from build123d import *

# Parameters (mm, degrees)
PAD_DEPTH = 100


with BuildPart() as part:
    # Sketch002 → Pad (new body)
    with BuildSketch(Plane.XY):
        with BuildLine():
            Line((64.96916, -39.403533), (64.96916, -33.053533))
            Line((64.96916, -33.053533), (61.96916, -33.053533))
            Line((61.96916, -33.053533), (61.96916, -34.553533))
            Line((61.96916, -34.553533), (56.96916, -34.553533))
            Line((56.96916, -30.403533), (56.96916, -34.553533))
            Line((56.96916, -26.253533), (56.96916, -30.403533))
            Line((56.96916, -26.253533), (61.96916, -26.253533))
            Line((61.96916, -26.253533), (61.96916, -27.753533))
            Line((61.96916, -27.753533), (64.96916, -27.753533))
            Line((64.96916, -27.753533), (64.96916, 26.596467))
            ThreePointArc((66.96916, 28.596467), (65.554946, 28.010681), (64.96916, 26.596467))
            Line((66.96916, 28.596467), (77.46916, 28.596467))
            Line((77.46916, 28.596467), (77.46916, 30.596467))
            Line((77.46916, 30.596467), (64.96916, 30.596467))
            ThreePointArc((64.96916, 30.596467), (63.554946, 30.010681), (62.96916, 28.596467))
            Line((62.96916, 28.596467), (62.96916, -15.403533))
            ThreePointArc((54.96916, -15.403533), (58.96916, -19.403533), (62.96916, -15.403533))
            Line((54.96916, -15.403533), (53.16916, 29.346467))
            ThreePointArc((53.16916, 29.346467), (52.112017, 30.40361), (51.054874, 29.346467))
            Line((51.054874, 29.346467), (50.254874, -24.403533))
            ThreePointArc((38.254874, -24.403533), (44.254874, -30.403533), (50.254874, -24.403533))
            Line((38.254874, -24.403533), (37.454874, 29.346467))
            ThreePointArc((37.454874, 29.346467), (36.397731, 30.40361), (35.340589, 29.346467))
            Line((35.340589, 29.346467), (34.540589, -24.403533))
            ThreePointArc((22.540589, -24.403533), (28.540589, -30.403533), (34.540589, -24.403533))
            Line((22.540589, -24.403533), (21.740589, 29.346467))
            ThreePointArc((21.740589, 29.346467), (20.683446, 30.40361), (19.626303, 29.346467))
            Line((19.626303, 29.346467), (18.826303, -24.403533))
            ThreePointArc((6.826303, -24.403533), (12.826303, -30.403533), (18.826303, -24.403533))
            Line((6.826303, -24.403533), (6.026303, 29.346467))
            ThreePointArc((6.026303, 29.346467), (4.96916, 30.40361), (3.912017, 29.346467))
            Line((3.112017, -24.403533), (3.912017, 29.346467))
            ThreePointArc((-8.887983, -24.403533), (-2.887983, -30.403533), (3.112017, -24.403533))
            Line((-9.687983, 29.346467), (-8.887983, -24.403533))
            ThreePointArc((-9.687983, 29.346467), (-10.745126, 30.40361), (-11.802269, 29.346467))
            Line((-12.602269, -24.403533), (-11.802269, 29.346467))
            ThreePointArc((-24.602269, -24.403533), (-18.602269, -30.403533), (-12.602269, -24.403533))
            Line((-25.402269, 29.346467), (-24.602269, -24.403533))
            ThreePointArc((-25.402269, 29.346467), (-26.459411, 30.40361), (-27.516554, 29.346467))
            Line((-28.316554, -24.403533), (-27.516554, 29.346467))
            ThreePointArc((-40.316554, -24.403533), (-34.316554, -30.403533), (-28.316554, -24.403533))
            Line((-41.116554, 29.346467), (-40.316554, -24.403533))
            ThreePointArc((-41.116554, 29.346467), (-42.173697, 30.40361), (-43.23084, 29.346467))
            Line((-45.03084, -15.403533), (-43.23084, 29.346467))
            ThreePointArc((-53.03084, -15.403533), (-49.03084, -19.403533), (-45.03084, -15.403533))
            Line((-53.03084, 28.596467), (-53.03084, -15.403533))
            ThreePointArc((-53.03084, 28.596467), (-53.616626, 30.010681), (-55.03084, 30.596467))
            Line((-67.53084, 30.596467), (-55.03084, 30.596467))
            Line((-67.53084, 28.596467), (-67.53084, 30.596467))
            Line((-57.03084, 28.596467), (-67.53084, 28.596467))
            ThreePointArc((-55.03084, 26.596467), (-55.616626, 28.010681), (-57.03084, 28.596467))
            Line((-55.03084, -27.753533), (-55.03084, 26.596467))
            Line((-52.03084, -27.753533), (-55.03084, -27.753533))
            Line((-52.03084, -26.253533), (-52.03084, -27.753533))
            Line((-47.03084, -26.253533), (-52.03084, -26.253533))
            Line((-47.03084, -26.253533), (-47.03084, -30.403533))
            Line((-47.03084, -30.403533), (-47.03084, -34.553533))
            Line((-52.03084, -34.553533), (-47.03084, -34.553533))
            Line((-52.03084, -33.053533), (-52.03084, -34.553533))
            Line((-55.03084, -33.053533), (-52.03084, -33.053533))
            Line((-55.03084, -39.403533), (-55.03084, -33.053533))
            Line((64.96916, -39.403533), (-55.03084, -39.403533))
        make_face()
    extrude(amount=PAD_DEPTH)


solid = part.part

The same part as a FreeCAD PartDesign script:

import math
import FreeCAD as App
import Part
import Sketcher

V = App.Vector

doc = App.newDocument("Part")
params = doc.addObject("Spreadsheet::Sheet", "Params")
for row, (alias, value) in enumerate([
    ("sketch1_radius", "1.999999 mm"),
    ("sketch1_radius2", "4 mm"),
    ("sketch1_radius3", "6 mm"),
    ("sketch1_width", "3 mm"),
    ("sketch1_width2", "5 mm"),
    ("pad1_length", "100 mm"),
], start=1):
    params.set(f"A{row}", alias)
    params.set(f"B{row}", "=" + value)
    params.setAlias(f"B{row}", alias)

body = doc.addObject("PartDesign::Body", "Body")

sketch1 = body.newObject("Sketcher::SketchObject", "Sketch")
sketch1.AttachmentSupport = (doc.getObject("XY_Plane"), [""])
sketch1.MapMode = "FlatFace"
sketch1.addGeometry([
    Part.LineSegment(V(65, -39.4, 0), V(65, -33.1, 0)),
    Part.LineSegment(V(65, -33.1, 0), V(62, -33.1, 0)),
    Part.LineSegment(V(62, -33.1, 0), V(62, -34.6, 0)),
    Part.LineSegment(V(62, -34.6, 0), V(57, -34.6, 0)),
    Part.LineSegment(V(57, -34.6, 0), V(57, -26.3, 0)),
    Part.LineSegment(V(57, -26.3, 0), V(62, -26.3, 0)),
    Part.LineSegment(V(62, -26.3, 0), V(62, -27.8, 0)),
    Part.LineSegment(V(62, -27.8, 0), V(65, -27.8, 0)),
    Part.LineSegment(V(65, -27.8, 0), V(65, 26.6, 0)),
    Part.ArcOfCircle(Part.Circle(V(67, 26.6, 0), V(0, 0, 1), 2), math.radians(90), math.radians(180)),
    Part.LineSegment(V(67, 28.6, 0), V(77.5, 28.6, 0)),
    Part.LineSegment(V(77.5, 28.6, 0), V(77.5, 30.6, 0)),
    Part.LineSegment(V(77.5, 30.6, 0), V(65, 30.6, 0)),
    Part.ArcOfCircle(Part.Circle(V(65, 28.6, 0), V(0, 0, 1), 2), math.radians(90), math.radians(180)),
    Part.LineSegment(V(63, 28.6, 0), V(63, -15.4, 0)),
    Part.ArcOfCircle(Part.Circle(V(59, -15.4, 0), V(0, 0, 1), 4), math.radians(180), math.radians(360)),
    Part.LineSegment(V(55, -15.4, 0), V(53.2, 29.3, 0)),
    Part.ArcOfCircle(Part.Circle(V(52.1, 29.3, 0), V(0, 0, 1), 1.1), math.radians(0), math.radians(180)),
    Part.LineSegment(V(51.1, 29.3, 0), V(50.3, -24.4, 0)),
    Part.ArcOfCircle(Part.Circle(V(44.3, -24.4, 0), V(0, 0, 1), 6), math.radians(180), math.radians(360)),
    Part.LineSegment(V(38.3, -24.4, 0), V(37.5, 29.3, 0)),
    Part.ArcOfCircle(Part.Circle(V(36.4, 29.3, 0), V(0, 0, 1), 1.1), math.radians(0), math.radians(180)),
    Part.LineSegment(V(35.3, 29.3, 0), V(34.5, -24.4, 0)),
    Part.ArcOfCircle(Part.Circle(V(28.5, -24.4, 0), V(0, 0, 1), 6), math.radians(180), math.radians(360)),
    Part.LineSegment(V(22.5, -24.4, 0), V(21.7, 29.3, 0)),
    Part.ArcOfCircle(Part.Circle(V(20.7, 29.3, 0), V(0, 0, 1), 1.1), math.radians(0), math.radians(180)),
    Part.LineSegment(V(19.6, 29.3, 0), V(18.8, -24.4, 0)),
    Part.ArcOfCircle(Part.Circle(V(12.8, -24.4, 0), V(0, 0, 1), 6), math.radians(180), math.radians(360)),
    Part.LineSegment(V(6.8, -24.4, 0), V(6, 29.3, 0)),
    Part.ArcOfCircle(Part.Circle(V(5, 29.3, 0), V(0, 0, 1), 1.1), math.radians(0), math.radians(180)),
    Part.LineSegment(V(3.9, 29.3, 0), V(3.1, -24.4, 0)),
    Part.ArcOfCircle(Part.Circle(V(-2.9, -24.4, 0), V(0, 0, 1), 6), math.radians(180), math.radians(360)),
    Part.LineSegment(V(-8.9, -24.4, 0), V(-9.7, 29.3, 0)),
    Part.ArcOfCircle(Part.Circle(V(-10.7, 29.3, 0), V(0, 0, 1), 1.1), math.radians(0), math.radians(180)),
    Part.LineSegment(V(-11.8, 29.3, 0), V(-12.6, -24.4, 0)),
    Part.ArcOfCircle(Part.Circle(V(-18.6, -24.4, 0), V(0, 0, 1), 6), math.radians(180), math.radians(360)),
    Part.LineSegment(V(-24.6, -24.4, 0), V(-25.4, 29.3, 0)),
    Part.ArcOfCircle(Part.Circle(V(-26.5, 29.3, 0), V(0, 0, 1), 1.1), math.radians(0), math.radians(180)),
    Part.LineSegment(V(-27.5, 29.3, 0), V(-28.3, -24.4, 0)),
    Part.ArcOfCircle(Part.Circle(V(-34.3, -24.4, 0), V(0, 0, 1), 6), math.radians(180), math.radians(360)),
    Part.LineSegment(V(-40.3, -24.4, 0), V(-41.1, 29.3, 0)),
    Part.ArcOfCircle(Part.Circle(V(-42.2, 29.3, 0), V(0, 0, 1), 1.1), math.radians(0), math.radians(180)),
    Part.LineSegment(V(-43.2, 29.3, 0), V(-45, -15.4, 0)),
    Part.ArcOfCircle(Part.Circle(V(-49, -15.4, 0), V(0, 0, 1), 4), math.radians(180), math.radians(360)),
    Part.LineSegment(V(-53, -15.4, 0), V(-53, 28.6, 0)),
    Part.ArcOfCircle(Part.Circle(V(-55, 28.6, 0), V(0, 0, 1), 2), math.radians(0), math.radians(90)),
    Part.LineSegment(V(-55, 30.6, 0), V(-67.5, 30.6, 0)),
    Part.LineSegment(V(-67.5, 30.6, 0), V(-67.5, 28.6, 0)),
    Part.LineSegment(V(-67.5, 28.6, 0), V(-57, 28.6, 0)),
    Part.ArcOfCircle(Part.Circle(V(-57, 26.6, 0), V(0, 0, 1), 2), math.radians(0), math.radians(90)),
    Part.LineSegment(V(-55, 26.6, 0), V(-55, -27.8, 0)),
    Part.LineSegment(V(-55, -27.8, 0), V(-52, -27.8, 0)),
    Part.LineSegment(V(-52, -27.8, 0), V(-52, -26.3, 0)),
    Part.LineSegment(V(-52, -26.3, 0), V(-47, -26.3, 0)),
    Part.LineSegment(V(-47, -26.3, 0), V(-47, -34.6, 0)),
    Part.LineSegment(V(-47, -34.6, 0), V(-52, -34.6, 0)),
    Part.LineSegment(V(-52, -34.6, 0), V(-52, -33.1, 0)),
    Part.LineSegment(V(-52, -33.1, 0), V(-55, -33.1, 0)),
    Part.LineSegment(V(-55, -33.1, 0), V(-55, -39.4, 0)),
    Part.LineSegment(V(-55, -39.4, 0), V(65, -39.4, 0)),
], False)
sketch1.addConstraint([
    Sketcher.Constraint("Coincident", 0, 2, 1, 1),
    Sketcher.Constraint("Coincident", 1, 2, 2, 1),
    Sketcher.Constraint("Coincident", 2, 2, 3, 1),
    Sketcher.Constraint("Coincident", 3, 2, 4, 1),
    Sketcher.Constraint("Coincident", 4, 2, 5, 1),
    Sketcher.Constraint("Coincident", 5, 2, 6, 1),
    Sketcher.Constraint("Coincident", 6, 2, 7, 1),
    Sketcher.Constraint("Coincident", 7, 2, 8, 1),
    Sketcher.Constraint("Tangent", 8, 2, 9, 2),
    Sketcher.Constraint("Tangent", 9, 1, 10, 1),
    Sketcher.Constraint("Coincident", 10, 2, 11, 1),
    Sketcher.Constraint("Coincident", 11, 2, 12, 1),
    Sketcher.Constraint("Tangent", 12, 2, 13, 1),
    Sketcher.Constraint("Tangent", 13, 2, 14, 1),
    Sketcher.Constraint("Tangent", 14, 2, 15, 2),
    Sketcher.Constraint("Coincident", 15, 1, 16, 1),
    Sketcher.Constraint("Coincident", 16, 2, 17, 1),
    Sketcher.Constraint("Coincident", 17, 2, 18, 1),
    Sketcher.Constraint("Coincident", 18, 2, 19, 2),
    Sketcher.Constraint("Coincident", 19, 1, 20, 1),
    Sketcher.Constraint("Coincident", 20, 2, 21, 1),
    Sketcher.Constraint("Coincident", 21, 2, 22, 1),
    Sketcher.Constraint("Coincident", 22, 2, 23, 2),
    Sketcher.Constraint("Coincident", 23, 1, 24, 1),
    Sketcher.Constraint("Coincident", 24, 2, 25, 1),
    Sketcher.Constraint("Coincident", 25, 2, 26, 1),
    Sketcher.Constraint("Coincident", 26, 2, 27, 2),
    Sketcher.Constraint("Coincident", 27, 1, 28, 1),
    Sketcher.Constraint("Coincident", 28, 2, 29, 1),
    Sketcher.Constraint("Coincident", 29, 2, 30, 1),
    Sketcher.Constraint("Coincident", 30, 2, 31, 2),
    Sketcher.Constraint("Coincident", 31, 1, 32, 1),
    Sketcher.Constraint("Coincident", 32, 2, 33, 1),
    Sketcher.Constraint("Coincident", 33, 2, 34, 1),
    Sketcher.Constraint("Coincident", 34, 2, 35, 2),
    Sketcher.Constraint("Coincident", 35, 1, 36, 1),
    Sketcher.Constraint("Coincident", 36, 2, 37, 1),
    Sketcher.Constraint("Coincident", 37, 2, 38, 1),
    Sketcher.Constraint("Coincident", 38, 2, 39, 2),
    Sketcher.Constraint("Coincident", 39, 1, 40, 1),
    Sketcher.Constraint("Coincident", 40, 2, 41, 1),
    Sketcher.Constraint("Coincident", 41, 2, 42, 1),
    Sketcher.Constraint("Coincident", 42, 2, 43, 2),
    Sketcher.Constraint("Tangent", 43, 1, 44, 1),
    Sketcher.Constraint("Tangent", 44, 2, 45, 1),
    Sketcher.Constraint("Tangent", 45, 2, 46, 1),
    Sketcher.Constraint("Coincident", 46, 2, 47, 1),
    Sketcher.Constraint("Coincident", 47, 2, 48, 1),
    Sketcher.Constraint("Tangent", 48, 2, 49, 2),
    Sketcher.Constraint("Tangent", 49, 1, 50, 1),
    Sketcher.Constraint("Coincident", 50, 2, 51, 1),
    Sketcher.Constraint("Coincident", 51, 2, 52, 1),
    Sketcher.Constraint("Coincident", 52, 2, 53, 1),
    Sketcher.Constraint("Coincident", 53, 2, 54, 1),
    Sketcher.Constraint("Coincident", 54, 2, 55, 1),
    Sketcher.Constraint("Coincident", 55, 2, 56, 1),
    Sketcher.Constraint("Coincident", 56, 2, 57, 1),
    Sketcher.Constraint("Coincident", 57, 2, 58, 1),
    Sketcher.Constraint("Coincident", 58, 2, 59, 1),
    Sketcher.Constraint("Coincident", 59, 2, 0, 1),
    Sketcher.Constraint("Vertical", 0),
    Sketcher.Constraint("Horizontal", 1),
    Sketcher.Constraint("Vertical", 2),
    Sketcher.Constraint("Horizontal", 3),
    Sketcher.Constraint("Vertical", 4),
    Sketcher.Constraint("Horizontal", 5),
    Sketcher.Constraint("Vertical", 6),
    Sketcher.Constraint("Horizontal", 7),
    Sketcher.Constraint("Vertical", 8),
    Sketcher.Constraint("Horizontal", 10),
    Sketcher.Constraint("Vertical", 11),
    Sketcher.Constraint("Horizontal", 12),
    Sketcher.Constraint("Vertical", 14),
    Sketcher.Constraint("Vertical", 44),
    Sketcher.Constraint("Horizontal", 46),
    Sketcher.Constraint("Vertical", 47),
    Sketcher.Constraint("Horizontal", 48),
    Sketcher.Constraint("Vertical", 50),
    Sketcher.Constraint("Horizontal", 51),
    Sketcher.Constraint("Vertical", 52),
    Sketcher.Constraint("Horizontal", 53),
    Sketcher.Constraint("Vertical", 54),
    Sketcher.Constraint("Horizontal", 55),
    Sketcher.Constraint("Vertical", 56),
    Sketcher.Constraint("Horizontal", 57),
    Sketcher.Constraint("Vertical", 58),
    Sketcher.Constraint("Horizontal", 59),
    Sketcher.Constraint("Equal", 9, 13),
    Sketcher.Constraint("Equal", 17, 21),
    Sketcher.Constraint("Equal", 19, 23),
    Sketcher.Constraint("Equal", 21, 25),
    Sketcher.Constraint("Equal", 23, 27),
    Sketcher.Constraint("Equal", 25, 29),
    Sketcher.Constraint("Equal", 27, 31),
    Sketcher.Constraint("Equal", 29, 33),
    Sketcher.Constraint("Equal", 31, 35),
    Sketcher.Constraint("Equal", 33, 37),
    Sketcher.Constraint("Equal", 35, 39),
    Sketcher.Constraint("Equal", 37, 41),
    Sketcher.Constraint("Equal", 15, 43),
    Sketcher.Constraint("Equal", 13, 45),
    Sketcher.Constraint("Equal", 45, 49),
    Sketcher.Constraint("Parallel", 18, 22),
    Sketcher.Constraint("Parallel", 20, 24),
    Sketcher.Constraint("Parallel", 22, 26),
    Sketcher.Constraint("Parallel", 24, 28),
    Sketcher.Constraint("Parallel", 26, 30),
    Sketcher.Constraint("Parallel", 28, 32),
    Sketcher.Constraint("Parallel", 30, 34),
    Sketcher.Constraint("Parallel", 32, 36),
    Sketcher.Constraint("Parallel", 34, 38),
    Sketcher.Constraint("Parallel", 36, 40),
    Sketcher.Constraint("Horizontal", 17, 3, 21, 3),
    Sketcher.Constraint("Horizontal", 19, 3, 23, 3),
    Sketcher.Constraint("Horizontal", 21, 3, 25, 3),
    Sketcher.Constraint("Horizontal", 23, 3, 27, 3),
    Sketcher.Constraint("Horizontal", 25, 3, 29, 3),
    Sketcher.Constraint("Horizontal", 27, 3, 31, 3),
    Sketcher.Constraint("Horizontal", 29, 3, 33, 3),
    Sketcher.Constraint("Horizontal", 31, 3, 35, 3),
    Sketcher.Constraint("Horizontal", 33, 3, 37, 3),
    Sketcher.Constraint("Horizontal", 35, 3, 39, 3),
    Sketcher.Constraint("Horizontal", 37, 3, 41, 3),
    Sketcher.Constraint("Horizontal", 15, 3, 43, 3),
    Sketcher.Constraint("Horizontal", 13, 3, 45, 3),
    Sketcher.Constraint("Horizontal", 9, 3, 49, 3),
    Sketcher.Constraint("Horizontal", 45, 3, 9, 1),
    Sketcher.Constraint("Horizontal", 14, 2, 15, 1),
    Sketcher.Constraint("Horizontal", 41, 3, 16, 2),
    Sketcher.Constraint("Horizontal", 16, 2, 17, 2),
    Sketcher.Constraint("Horizontal", 39, 3, 18, 2),
    Sketcher.Constraint("Horizontal", 18, 2, 19, 1),
    Sketcher.Constraint("Horizontal", 17, 2, 20, 2),
    Sketcher.Constraint("Horizontal", 20, 2, 21, 2),
    Sketcher.Constraint("Horizontal", 19, 1, 22, 2),
    Sketcher.Constraint("Horizontal", 22, 2, 23, 1),
    Sketcher.Constraint("Horizontal", 21, 2, 24, 2),
    Sketcher.Constraint("Horizontal", 24, 2, 25, 2),
    Sketcher.Constraint("Horizontal", 23, 1, 26, 2),
    Sketcher.Constraint("Horizontal", 26, 2, 27, 1),
    Sketcher.Constraint("Horizontal", 25, 2, 28, 2),
    Sketcher.Constraint("Horizontal", 28, 2, 29, 2),
    Sketcher.Constraint("Horizontal", 27, 1, 30, 2),
    Sketcher.Constraint("Horizontal", 30, 2, 31, 1),
    Sketcher.Constraint("Horizontal", 29, 2, 32, 2),
    Sketcher.Constraint("Horizontal", 32, 2, 33, 2),
    Sketcher.Constraint("Horizontal", 31, 1, 34, 2),
    Sketcher.Constraint("Horizontal", 34, 2, 35, 1),
    Sketcher.Constraint("Horizontal", 33, 2, 36, 2),
    Sketcher.Constraint("Horizontal", 36, 2, 37, 2),
    Sketcher.Constraint("Horizontal", 35, 1, 38, 2),
    Sketcher.Constraint("Horizontal", 38, 2, 39, 1),
    Sketcher.Constraint("Horizontal", 37, 2, 40, 2),
    Sketcher.Constraint("Horizontal", 40, 2, 41, 2),
    Sketcher.Constraint("Horizontal", 15, 1, 42, 2),
    Sketcher.Constraint("Horizontal", 7, 2, 50, 2),
    Sketcher.Constraint("Horizontal", 5, 2, 52, 2),
    Sketcher.Constraint("Horizontal", 3, 2, 54, 2),
    Sketcher.Constraint("Horizontal", 1, 2, 56, 2),
    Sketcher.Constraint("Vertical", 13, 3, 0, 2),
    Sketcher.Constraint("Vertical", 2, 2, 5, 2),
    Sketcher.Constraint("Vertical", 0, 2, 7, 2),
    Sketcher.Constraint("Vertical", 45, 2, 49, 1),
    Sketcher.Constraint("Vertical", 52, 2, 55, 2),
    Sketcher.Constraint("Vertical", 50, 2, 57, 2),
    Sketcher.Constraint("Equal", 12, 46),
    Sketcher.Constraint("Equal", 7, 51),
    Sketcher.Constraint("Equal", 5, 53),
    Sketcher.Constraint("Equal", 2, 6),
    Sketcher.Constraint("Equal", 18, 20),
    Sketcher.Constraint("Equal", 16, 42),
    Sketcher.Constraint("Radius", 9, 1.999999),
    Sketcher.Constraint("Radius", 15, 4.0),
    Sketcher.Constraint("Radius", 19, 6.0),
    Sketcher.Constraint("DistanceX", 1, 2, 1, 1, 3.0),
    Sketcher.Constraint("DistanceX", 3, 2, 3, 1, 5.0),
    Sketcher.Constraint("DistanceX", 59, 1, 59, 2, 120.0),
    Sketcher.Constraint("DistanceY", 14, 2, 14, 1, 44.0),
    Sketcher.Constraint("DistanceX", 10, 1, 10, 2, 10.5),
    Sketcher.Constraint("DistanceY", 2, 2, 2, 1, 1.5),
    Sketcher.Constraint("DistanceY", 4, 1, 4, 2, 8.3),
    Sketcher.Constraint("DistanceY", 0, 1, 0, 2, 6.35),
    Sketcher.Constraint("DistanceY", 8, 1, 8, 2, 54.35),
    Sketcher.Constraint("Radius", 17, 1.057143),
    Sketcher.Constraint("DistanceX", -1, 1, 9, 3, 66.969159),
    Sketcher.Constraint("DistanceY", -1, 1, 9, 3, 26.596468),
    Sketcher.Constraint("DistanceX", -1, 1, 21, 3, 36.397731),
    Sketcher.Constraint("Distance", 16, 44.786186),
    Sketcher.Constraint("Distance", 18, 53.755953),
])
sketch1.setExpression("Constraints[171]", "Params.sketch1_radius")
sketch1.setExpression("Constraints[172]", "Params.sketch1_radius2")
sketch1.setExpression("Constraints[173]", "Params.sketch1_radius3")
sketch1.setExpression("Constraints[174]", "Params.sketch1_width")
sketch1.setExpression("Constraints[175]", "Params.sketch1_width2")
pad1 = body.newObject("PartDesign::Pad", "Pad")
pad1.Profile = sketch1
pad1.setExpression("Length", "Params.pad1_length")

doc.recompute()
